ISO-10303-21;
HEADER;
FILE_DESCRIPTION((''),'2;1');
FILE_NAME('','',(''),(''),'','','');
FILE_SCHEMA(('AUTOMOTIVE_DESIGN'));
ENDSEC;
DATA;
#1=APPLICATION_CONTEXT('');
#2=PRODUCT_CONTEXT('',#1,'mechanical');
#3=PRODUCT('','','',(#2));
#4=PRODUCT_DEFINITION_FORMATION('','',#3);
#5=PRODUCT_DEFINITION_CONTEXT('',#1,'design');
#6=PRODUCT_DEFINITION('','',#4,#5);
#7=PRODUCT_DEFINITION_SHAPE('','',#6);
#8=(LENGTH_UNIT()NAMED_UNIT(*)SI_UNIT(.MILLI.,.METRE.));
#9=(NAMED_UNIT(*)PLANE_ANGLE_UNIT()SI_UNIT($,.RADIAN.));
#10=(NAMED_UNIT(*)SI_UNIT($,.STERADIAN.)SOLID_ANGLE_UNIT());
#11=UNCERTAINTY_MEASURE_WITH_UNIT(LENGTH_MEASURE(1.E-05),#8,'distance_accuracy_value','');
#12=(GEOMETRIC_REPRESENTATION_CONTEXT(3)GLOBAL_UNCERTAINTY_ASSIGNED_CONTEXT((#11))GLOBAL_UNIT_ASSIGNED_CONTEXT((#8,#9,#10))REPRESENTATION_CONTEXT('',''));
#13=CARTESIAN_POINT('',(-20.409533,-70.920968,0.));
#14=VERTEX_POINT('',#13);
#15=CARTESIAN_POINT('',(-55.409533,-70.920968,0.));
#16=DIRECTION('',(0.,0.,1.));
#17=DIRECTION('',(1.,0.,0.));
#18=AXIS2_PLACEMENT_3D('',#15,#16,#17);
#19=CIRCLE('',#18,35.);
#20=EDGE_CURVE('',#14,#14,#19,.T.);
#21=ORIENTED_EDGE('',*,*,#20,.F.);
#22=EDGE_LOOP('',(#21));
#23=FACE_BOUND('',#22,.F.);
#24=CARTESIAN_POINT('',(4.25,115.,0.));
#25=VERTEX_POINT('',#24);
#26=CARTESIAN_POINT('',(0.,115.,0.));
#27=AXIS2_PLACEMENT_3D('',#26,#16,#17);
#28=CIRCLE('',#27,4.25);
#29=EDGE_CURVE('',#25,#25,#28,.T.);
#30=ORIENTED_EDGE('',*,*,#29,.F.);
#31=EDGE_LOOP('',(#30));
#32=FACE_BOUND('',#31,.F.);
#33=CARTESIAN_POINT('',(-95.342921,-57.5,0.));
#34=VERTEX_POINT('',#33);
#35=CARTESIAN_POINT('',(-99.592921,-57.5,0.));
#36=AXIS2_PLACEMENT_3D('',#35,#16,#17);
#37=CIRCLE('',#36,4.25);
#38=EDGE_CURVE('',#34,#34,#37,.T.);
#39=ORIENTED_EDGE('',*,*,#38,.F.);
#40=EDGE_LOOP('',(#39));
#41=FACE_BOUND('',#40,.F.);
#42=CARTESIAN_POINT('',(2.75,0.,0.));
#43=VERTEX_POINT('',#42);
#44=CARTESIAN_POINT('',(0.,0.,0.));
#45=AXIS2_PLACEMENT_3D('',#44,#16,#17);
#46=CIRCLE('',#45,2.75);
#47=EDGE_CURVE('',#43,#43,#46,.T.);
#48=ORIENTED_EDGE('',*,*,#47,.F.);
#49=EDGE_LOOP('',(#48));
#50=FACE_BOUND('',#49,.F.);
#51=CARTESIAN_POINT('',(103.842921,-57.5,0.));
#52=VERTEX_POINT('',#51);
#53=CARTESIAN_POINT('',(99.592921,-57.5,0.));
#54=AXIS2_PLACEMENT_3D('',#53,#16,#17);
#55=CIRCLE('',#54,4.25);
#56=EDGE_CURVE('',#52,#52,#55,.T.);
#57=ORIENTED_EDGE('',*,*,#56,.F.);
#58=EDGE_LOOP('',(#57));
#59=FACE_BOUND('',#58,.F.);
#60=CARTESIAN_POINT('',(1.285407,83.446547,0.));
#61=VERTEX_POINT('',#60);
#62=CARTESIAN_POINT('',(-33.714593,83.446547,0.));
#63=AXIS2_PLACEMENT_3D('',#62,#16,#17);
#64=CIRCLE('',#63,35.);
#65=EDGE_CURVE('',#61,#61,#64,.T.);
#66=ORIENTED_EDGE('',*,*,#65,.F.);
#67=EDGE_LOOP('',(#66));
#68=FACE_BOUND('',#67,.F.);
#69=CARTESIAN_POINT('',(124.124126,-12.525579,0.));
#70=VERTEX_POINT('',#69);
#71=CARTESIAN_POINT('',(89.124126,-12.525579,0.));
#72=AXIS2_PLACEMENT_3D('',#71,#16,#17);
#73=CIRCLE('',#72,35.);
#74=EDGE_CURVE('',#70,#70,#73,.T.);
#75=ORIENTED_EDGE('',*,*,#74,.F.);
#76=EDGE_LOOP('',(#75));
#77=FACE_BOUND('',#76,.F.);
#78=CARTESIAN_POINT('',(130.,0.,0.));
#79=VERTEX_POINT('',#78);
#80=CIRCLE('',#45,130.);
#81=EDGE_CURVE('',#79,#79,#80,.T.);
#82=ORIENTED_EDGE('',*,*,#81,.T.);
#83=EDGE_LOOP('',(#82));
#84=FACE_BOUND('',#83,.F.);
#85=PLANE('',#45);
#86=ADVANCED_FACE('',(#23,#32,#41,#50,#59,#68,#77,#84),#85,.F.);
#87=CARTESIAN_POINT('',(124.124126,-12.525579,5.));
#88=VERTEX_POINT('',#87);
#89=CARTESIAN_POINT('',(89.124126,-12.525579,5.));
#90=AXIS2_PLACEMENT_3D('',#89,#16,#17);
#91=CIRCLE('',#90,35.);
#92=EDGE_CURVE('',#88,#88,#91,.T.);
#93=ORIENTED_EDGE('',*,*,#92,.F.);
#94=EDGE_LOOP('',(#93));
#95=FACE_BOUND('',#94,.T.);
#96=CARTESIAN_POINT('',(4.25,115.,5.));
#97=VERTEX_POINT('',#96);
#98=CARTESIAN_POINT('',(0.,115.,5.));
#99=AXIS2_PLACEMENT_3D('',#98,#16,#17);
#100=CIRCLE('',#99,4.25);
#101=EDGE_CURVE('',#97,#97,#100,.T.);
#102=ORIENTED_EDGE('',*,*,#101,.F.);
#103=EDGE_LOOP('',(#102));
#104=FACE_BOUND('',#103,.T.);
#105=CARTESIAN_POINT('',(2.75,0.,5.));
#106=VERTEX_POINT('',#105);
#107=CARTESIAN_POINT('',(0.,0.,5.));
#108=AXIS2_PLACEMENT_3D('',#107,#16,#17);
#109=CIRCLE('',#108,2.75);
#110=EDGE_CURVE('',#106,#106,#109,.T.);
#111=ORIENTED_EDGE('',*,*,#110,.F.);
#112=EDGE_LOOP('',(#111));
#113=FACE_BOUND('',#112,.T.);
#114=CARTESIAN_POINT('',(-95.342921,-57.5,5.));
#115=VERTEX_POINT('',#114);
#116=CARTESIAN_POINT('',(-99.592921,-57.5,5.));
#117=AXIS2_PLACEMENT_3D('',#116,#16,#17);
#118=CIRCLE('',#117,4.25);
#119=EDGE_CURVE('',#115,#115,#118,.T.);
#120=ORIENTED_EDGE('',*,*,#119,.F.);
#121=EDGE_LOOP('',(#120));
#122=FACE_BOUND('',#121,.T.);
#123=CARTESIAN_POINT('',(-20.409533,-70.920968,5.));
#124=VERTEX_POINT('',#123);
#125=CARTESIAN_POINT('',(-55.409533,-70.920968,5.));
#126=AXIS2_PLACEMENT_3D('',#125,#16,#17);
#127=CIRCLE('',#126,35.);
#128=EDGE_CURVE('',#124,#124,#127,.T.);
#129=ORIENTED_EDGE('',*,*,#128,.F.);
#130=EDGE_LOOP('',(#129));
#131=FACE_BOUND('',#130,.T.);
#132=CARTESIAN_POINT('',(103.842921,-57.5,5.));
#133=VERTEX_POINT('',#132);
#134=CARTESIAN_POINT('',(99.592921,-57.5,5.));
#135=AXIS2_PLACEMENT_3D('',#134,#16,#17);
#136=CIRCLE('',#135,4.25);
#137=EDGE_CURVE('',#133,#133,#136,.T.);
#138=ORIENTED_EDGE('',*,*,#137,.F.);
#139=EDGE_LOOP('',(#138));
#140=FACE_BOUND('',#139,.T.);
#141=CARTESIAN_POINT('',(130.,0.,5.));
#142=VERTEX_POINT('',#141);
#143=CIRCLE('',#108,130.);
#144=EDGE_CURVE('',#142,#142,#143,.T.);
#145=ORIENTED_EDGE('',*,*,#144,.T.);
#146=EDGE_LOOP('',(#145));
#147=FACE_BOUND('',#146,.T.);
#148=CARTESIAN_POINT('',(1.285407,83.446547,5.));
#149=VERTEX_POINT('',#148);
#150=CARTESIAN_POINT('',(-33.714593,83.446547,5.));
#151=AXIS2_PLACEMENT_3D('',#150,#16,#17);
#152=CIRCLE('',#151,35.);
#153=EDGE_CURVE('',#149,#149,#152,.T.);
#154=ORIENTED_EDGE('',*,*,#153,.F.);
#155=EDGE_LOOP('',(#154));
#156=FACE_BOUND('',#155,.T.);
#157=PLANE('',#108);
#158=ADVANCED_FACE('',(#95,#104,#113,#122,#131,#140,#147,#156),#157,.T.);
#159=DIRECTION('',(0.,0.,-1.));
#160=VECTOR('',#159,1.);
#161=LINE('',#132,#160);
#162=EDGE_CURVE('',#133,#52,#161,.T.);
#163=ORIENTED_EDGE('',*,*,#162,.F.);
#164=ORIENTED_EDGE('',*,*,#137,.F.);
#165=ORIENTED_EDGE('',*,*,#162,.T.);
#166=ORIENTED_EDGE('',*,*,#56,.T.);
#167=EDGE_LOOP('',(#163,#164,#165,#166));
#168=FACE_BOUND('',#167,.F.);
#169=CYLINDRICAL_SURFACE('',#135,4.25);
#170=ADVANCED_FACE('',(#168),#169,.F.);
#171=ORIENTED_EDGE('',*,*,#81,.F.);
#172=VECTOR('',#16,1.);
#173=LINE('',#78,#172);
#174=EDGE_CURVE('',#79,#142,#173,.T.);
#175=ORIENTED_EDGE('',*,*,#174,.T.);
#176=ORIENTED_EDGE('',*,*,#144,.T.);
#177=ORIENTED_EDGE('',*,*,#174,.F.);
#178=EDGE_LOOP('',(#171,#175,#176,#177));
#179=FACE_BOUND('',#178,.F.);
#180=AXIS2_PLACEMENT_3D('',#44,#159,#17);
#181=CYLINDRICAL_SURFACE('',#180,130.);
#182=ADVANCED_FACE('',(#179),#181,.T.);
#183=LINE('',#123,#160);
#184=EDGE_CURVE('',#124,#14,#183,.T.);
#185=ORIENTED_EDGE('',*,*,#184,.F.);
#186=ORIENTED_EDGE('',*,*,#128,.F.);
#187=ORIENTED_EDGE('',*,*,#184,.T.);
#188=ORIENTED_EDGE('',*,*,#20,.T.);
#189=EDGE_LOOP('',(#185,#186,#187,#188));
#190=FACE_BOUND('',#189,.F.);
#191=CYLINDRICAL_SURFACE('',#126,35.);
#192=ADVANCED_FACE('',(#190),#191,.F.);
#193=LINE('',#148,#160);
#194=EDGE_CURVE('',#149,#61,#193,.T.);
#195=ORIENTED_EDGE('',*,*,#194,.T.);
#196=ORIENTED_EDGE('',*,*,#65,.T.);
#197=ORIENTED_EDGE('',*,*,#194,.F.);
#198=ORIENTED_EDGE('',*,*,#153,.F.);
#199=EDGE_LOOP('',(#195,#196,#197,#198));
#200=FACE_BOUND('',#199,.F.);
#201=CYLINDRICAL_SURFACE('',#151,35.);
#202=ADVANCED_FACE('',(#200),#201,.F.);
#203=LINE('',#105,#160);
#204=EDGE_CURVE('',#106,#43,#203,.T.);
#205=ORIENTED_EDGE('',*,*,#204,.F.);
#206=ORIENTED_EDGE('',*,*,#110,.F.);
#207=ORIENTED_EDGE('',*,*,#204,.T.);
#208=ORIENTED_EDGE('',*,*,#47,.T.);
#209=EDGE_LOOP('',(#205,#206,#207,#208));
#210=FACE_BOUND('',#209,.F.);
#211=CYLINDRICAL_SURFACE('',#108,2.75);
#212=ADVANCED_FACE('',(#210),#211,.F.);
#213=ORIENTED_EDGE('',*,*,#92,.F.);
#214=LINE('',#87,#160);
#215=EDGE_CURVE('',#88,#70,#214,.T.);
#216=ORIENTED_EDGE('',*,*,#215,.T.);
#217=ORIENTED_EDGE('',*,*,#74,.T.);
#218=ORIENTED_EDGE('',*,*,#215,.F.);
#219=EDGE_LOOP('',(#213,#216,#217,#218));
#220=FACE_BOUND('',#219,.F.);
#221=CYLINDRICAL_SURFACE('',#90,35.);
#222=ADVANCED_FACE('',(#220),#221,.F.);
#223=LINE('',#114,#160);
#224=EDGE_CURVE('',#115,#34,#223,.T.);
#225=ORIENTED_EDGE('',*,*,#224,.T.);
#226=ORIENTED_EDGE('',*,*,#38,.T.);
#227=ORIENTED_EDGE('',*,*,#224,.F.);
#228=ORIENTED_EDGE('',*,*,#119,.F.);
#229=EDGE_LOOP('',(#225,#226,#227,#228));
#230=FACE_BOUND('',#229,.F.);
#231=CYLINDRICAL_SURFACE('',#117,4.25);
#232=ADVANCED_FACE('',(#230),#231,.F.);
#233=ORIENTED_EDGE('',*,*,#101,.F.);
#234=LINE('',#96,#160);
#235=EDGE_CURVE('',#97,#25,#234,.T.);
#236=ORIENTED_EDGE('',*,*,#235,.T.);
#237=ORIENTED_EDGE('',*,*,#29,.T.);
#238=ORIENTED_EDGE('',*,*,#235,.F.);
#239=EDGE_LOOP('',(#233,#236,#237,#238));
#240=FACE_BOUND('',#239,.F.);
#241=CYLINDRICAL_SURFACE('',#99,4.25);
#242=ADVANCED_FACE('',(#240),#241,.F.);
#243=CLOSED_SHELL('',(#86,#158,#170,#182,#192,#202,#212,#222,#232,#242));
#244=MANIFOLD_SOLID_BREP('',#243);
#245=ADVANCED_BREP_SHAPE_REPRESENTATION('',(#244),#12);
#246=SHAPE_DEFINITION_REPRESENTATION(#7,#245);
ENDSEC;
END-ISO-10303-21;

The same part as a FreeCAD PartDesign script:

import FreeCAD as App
import Part
import Sketcher
from FreeCAD import Vector

doc = App.newDocument("Part")
body = doc.addObject("PartDesign::Body", "Body")

# Sketch on XY plane
sketch1 = body.newObject("Sketcher::SketchObject", "Sketch")
sketch1.AttachmentSupport = (doc.getObject("XY_Plane"), [""])
sketch1.MapMode = "FlatFace"
sketch1.addGeometry(Part.Circle(Vector(0, 0, 0), Vector(0, 0, 1), 130), False)
sketch1.addConstraint([
    Sketcher.Constraint("Coincident", 0, 3, -1, 1),
    Sketcher.Constraint("Diameter", 0, 260.0),
])
pad1 = body.newObject("PartDesign::Pad", "Pad")
pad1.Profile = sketch1
pad1.Length = 5

# Sketch on XY plane
sketch2 = body.newObject("Sketcher::SketchObject", "Sketch001")
sketch2.AttachmentSupport = (doc.getObject("XY_Plane"), [""])
sketch2.MapMode = "FlatFace"
sketch2.AttachmentOffset = App.Placement(Vector(0, 0, 5), App.Rotation())
sketch2.addGeometry([
    Part.Circle(Vector(0, 0, 0), Vector(0, 0, 1), 2.75),
    Part.Circle(Vector(0, 115, 0), Vector(0, 0, 1), 4.25),
    Part.Circle(Vector(-99.592921, -57.5, 0), Vector(0, 0, 1), 4.25),
    Part.Circle(Vector(99.592921, -57.5, 0), Vector(0, 0, 1), 4.25),
], False)
sketch2.addConstraint([
    Sketcher.Constraint("Coincident", 0, 3, -1, 1),
    Sketcher.Constraint("Equal", 1, 2),
    Sketcher.Constraint("Equal", 2, 3),
    Sketcher.Constraint("Symmetric", 2, 3, 3, 3, -2),
    Sketcher.Constraint("PointOnObject", 1, 3, -2),
    Sketcher.Constraint("Diameter", 0, 5.5),
    Sketcher.Constraint("Diameter", 1, 8.5),
    Sketcher.Constraint("DistanceY", -1, 1, 1, 3, 115.0),
    Sketcher.Constraint("DistanceY", 2, 3, -1, 1, 57.5),
    Sketcher.Constraint("DistanceX", 2, 3, -1, 1, 99.592921),
])
pocket1 = body.newObject("PartDesign::Pocket", "Pocket")
pocket1.Profile = sketch2
pocket1.Type = "ThroughAll"

# Sketch on XY plane
sketch3 = body.newObject("Sketcher::SketchObject", "Sketch002")
sketch3.AttachmentSupport = (doc.getObject("XY_Plane"), [""])
sketch3.MapMode = "FlatFace"
sketch3.AttachmentOffset = App.Placement(Vector(0, 0, 5), App.Rotation())
sketch3.addGeometry([
    Part.Circle(Vector(-33.714593, 83.446547, 0), Vector(0, 0, 1), 35),
    Part.Circle(Vector(89.124126, -12.525579, 0), Vector(0, 0, 1), 35),
    Part.Circle(Vector(-55.409533, -70.920968, 0), Vector(0, 0, 1), 35),
], False)
sketch3.addConstraint([
    Sketcher.Constraint("Equal", 0, 1),
    Sketcher.Constraint("Equal", 1, 2),
    Sketcher.Constraint("Diameter", 0, 70.0),
    Sketcher.Constraint("DistanceY", 1, 3, -1, 1, 12.525579),
    Sketcher.Constraint("DistanceY", 2, 3, -1, 1, 70.920968),
    Sketcher.Constraint("DistanceX", 0, 3, 1, 3, 122.838719),
    Sketcher.Constraint("DistanceX", 2, 3, 1, 3, 144.533659),
    Sketcher.Constraint("DistanceX", 0, 3, -1, 1, 33.714593),
    Sketcher.Constraint("DistanceY", -1, 1, 0, 3, 83.446547),
])
pocket2 = body.newObject("PartDesign::Pocket", "Pocket001")
pocket2.Profile = sketch3
pocket2.Type = "ThroughAll"

doc.recompute()
